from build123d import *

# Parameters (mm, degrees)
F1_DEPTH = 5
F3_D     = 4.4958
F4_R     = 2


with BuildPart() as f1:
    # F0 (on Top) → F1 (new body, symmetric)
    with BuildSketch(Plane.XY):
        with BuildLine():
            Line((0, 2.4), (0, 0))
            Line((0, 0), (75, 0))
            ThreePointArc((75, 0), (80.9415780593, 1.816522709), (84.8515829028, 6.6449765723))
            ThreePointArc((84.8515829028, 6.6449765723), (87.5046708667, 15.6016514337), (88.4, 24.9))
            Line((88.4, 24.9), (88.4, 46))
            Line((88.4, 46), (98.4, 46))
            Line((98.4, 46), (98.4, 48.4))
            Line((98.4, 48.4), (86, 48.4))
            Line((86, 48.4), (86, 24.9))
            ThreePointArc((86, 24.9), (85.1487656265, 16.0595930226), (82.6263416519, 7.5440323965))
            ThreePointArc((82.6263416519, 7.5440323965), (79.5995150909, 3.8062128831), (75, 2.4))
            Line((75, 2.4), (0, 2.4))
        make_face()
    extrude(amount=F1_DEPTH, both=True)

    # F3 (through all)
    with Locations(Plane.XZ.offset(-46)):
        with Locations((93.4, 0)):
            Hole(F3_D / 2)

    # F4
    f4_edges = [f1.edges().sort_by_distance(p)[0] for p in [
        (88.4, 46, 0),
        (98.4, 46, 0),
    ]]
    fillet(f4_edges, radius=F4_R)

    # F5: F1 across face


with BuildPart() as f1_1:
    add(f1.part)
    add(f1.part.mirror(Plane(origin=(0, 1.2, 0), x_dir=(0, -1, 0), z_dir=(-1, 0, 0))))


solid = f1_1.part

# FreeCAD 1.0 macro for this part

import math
import FreeCAD as App
import Part
import Sketcher


def edges_at(feature, points):
    """Names of the edges that pass closest to the given points."""
    edges = feature.Shape.Edges
    near = lambda p: min(range(len(edges)), key=lambda i: edges[i].distToShape(Part.Vertex(*p))[0])
    return sorted({f"Edge{near(p) + 1}" for p in points})

doc = App.newDocument("Part")
body = doc.addObject("PartDesign::Body", "Body")

sketch1 = body.newObject("Sketcher::SketchObject", "Sketch")
sketch1.AttachmentSupport = (doc.getObject("XY_Plane"), [""])
sketch1.MapMode = "FlatFace"
sketch1.addGeometry([
    Part.LineSegment(App.Vector(0, 2.4, 0), App.Vector(0, 0, 0)),
    Part.LineSegment(App.Vector(0, 0, 0), App.Vector(75, 0, 0)),
    Part.ArcOfCircle(Part.Circle(App.Vector(75, 10.6, 0), App.Vector(0, 0, 1), 10.6), math.radians(-90), math.radians(-22)),
    Part.ArcOfCircle(Part.Circle(App.Vector(39.7, 24.9, 0), App.Vector(0, 0, 1), 48.7), math.radians(-22), math.radians(0)),
    Part.LineSegment(App.Vector(88.4, 24.9, 0), App.Vector(88.4, 46, 0)),
    Part.LineSegment(App.Vector(88.4, 46, 0), App.Vector(98.4, 46, 0)),
    Part.LineSegment(App.Vector(98.4, 46, 0), App.Vector(98.4, 48.4, 0)),
    Part.LineSegment(App.Vector(98.4, 48.4, 0), App.Vector(86, 48.4, 0)),
    Part.LineSegment(App.Vector(86, 48.4, 0), App.Vector(86, 24.9, 0)),
    Part.ArcOfCircle(Part.Circle(App.Vector(39.7, 24.9, 0), App.Vector(0, 0, 1), 46.3), math.radians(-22), math.radians(0)),
    Part.ArcOfCircle(Part.Circle(App.Vector(75, 10.6, 0), App.Vector(0, 0, 1), 8.2), math.radians(-90), math.radians(-22)),
    Part.LineSegment(App.Vector(75, 2.4, 0), App.Vector(0, 2.4, 0)),
], False)
sketch1.addConstraint([
    Sketcher.Constraint("Coincident", 0, 2, 1, 1),
    Sketcher.Constraint("Tangent", 1, 2, 2, 1),
    Sketcher.Constraint("Tangent", 2, 2, 3, 1),
    Sketcher.Constraint("Tangent", 3, 2, 4, 1),
    Sketcher.Constraint("Coincident", 4, 2, 5, 1),
    Sketcher.Constraint("Coincident", 5, 2, 6, 1),
    Sketcher.Constraint("Coincident", 6, 2, 7, 1),
    Sketcher.Constraint("Coincident", 7, 2, 8, 1),
    Sketcher.Constraint("Tangent", 8, 2, 9, 2),
    Sketcher.Constraint("Tangent", 9, 1, 10, 2),
    Sketcher.Constraint("Tangent", 10, 1, 11, 1),
    Sketcher.Constraint("Coincident", 11, 2, 0, 1),
    Sketcher.Constraint("Vertical", 0),
    Sketcher.Constraint("Horizontal", 1),
    Sketcher.Constraint("Vertical", 4),
    Sketcher.Constraint("Horizontal", 5),
    Sketcher.Constraint("Vertical", 6),
    Sketcher.Constraint("Horizontal", 7),
    Sketcher.Constraint("Vertical", 8),
    Sketcher.Constraint("Horizontal", 11),
    Sketcher.Constraint("Coincident", 0, 2, -1, 1),
    Sketcher.Constraint("Coincident", 9, 3, 3, 3),
    Sketcher.Constraint("Coincident", 10, 3, 2, 3),
    Sketcher.Constraint("Equal", 0, 6),
    Sketcher.Constraint("DistanceX", 1, 1, 1, 2, 75.0),
    Sketcher.Constraint("DistanceX", 5, 1, 5, 2, 10.0),
    Sketcher.Constraint("DistanceX", 7, 2, 7, 1, 12.4),
    Sketcher.Constraint("DistanceY", 4, 1, 4, 2, 21.1),
    Sketcher.Constraint("DistanceY", -1, 1, 4, 2, 46.0),
    Sketcher.Constraint("DistanceX", -1, 1, 7, 2, 86.0),
    Sketcher.Constraint("Radius", 2, 10.625274),
])
pad1 = body.newObject("PartDesign::Pad", "Pad")
pad1.Profile = sketch1
pad1.Length = 10
pad1.Midplane = True

sketch2 = body.newObject("Sketcher::SketchObject", "Sketch001")
sketch2.AttachmentSupport = (doc.getObject("XZ_Plane"), [""])
sketch2.MapMode = "FlatFace"
sketch2.AttachmentOffset = App.Placement(App.Vector(0, 0, -46), App.Rotation())
sketch2.addGeometry(Part.Circle(App.Vector(93.4, 0, 0), App.Vector(0, 0, 1), 2.2), False)
sketch2.addConstraint([
    Sketcher.Constraint("PointOnObject", 0, 3, -1),
    Sketcher.Constraint("Diameter", 0, 4.4958),
    Sketcher.Constraint("DistanceX", -1, 1, 0, 3, 93.4),
])
doc.recompute()
hole = body.newObject("PartDesign::Hole", "Hole")
hole.Profile = sketch2
hole.ThreadType = "None"
hole.Diameter = 4.4958
hole.DepthType = "ThroughAll"
doc.recompute()

fillet = body.newObject("PartDesign::Fillet", "Fillet")
fillet.Base = (hole, edges_at(hole, [(88.4, 46, 0), (98.4, 46, 0)]))
fillet.Radius = 2
body2 = doc.addObject("PartDesign::Body", "Body001")
doc.recompute()

body2.BaseFeature = body
doc.recompute()

mirroring = doc.addObject("Part::Mirroring", "Mirroring")
mirroring.Source = body
mirroring.Base = App.Vector(0, 1.2, 0)
mirroring.Normal = App.Vector(-1, 0, 0)
body3 = doc.addObject("PartDesign::Body", "Body002")
body3.BaseFeature = mirroring
boolean = body2.newObject("PartDesign::Boolean", "Boolean")
boolean.Type = "Fuse"
boolean.addObjects([body3])
doc.recompute()
mirroring.Visibility = False

doc.recompute()
